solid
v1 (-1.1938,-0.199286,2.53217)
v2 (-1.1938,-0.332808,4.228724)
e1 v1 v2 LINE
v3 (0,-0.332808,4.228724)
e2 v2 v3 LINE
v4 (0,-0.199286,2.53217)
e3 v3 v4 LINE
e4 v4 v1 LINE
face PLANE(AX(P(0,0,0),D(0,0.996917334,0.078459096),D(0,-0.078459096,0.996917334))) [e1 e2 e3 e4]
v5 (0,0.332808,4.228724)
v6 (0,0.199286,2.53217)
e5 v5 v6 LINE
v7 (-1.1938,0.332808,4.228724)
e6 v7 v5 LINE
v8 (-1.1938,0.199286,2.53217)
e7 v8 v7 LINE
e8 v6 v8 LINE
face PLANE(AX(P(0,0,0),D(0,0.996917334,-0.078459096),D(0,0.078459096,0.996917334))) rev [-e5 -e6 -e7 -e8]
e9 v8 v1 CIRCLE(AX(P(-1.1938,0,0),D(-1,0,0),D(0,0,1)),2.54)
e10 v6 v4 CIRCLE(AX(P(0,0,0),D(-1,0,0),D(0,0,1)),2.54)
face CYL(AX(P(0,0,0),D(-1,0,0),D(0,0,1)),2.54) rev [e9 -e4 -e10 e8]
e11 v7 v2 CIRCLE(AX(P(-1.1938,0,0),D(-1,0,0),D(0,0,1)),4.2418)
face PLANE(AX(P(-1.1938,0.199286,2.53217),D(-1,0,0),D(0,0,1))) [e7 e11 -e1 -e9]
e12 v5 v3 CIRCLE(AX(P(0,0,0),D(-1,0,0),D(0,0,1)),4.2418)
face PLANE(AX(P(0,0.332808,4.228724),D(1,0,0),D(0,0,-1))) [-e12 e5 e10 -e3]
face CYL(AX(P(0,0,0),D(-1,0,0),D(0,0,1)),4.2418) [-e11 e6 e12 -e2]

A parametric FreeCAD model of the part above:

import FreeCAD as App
import Part
import Sketcher
Q = App.Units.Quantity


def add_polygon(sketch, points):
    """Adds a closed chain of lines whose ends are joined by coincident constraints."""
    first, n = sketch.GeometryCount, len(points)
    for a, b in zip(points, points[1:] + points[:1]):
        sketch.addGeometry(Part.LineSegment(App.Vector(*a, 0), App.Vector(*b, 0)), False)
    for i in range(n):
        sketch.addConstraint(Sketcher.Constraint("Coincident", first + i, 2, first + (i + 1) % n, 1))

doc = App.newDocument("Part")
params = doc.addObject("Spreadsheet::Sheet", "Params")
for row, (alias, value) in enumerate([
    ("sketch1_width", "0.047 in"),
    ("sketch1_height", "0.067 in"),
    ("revolution_angle", "351 deg"),
], start=1):
    params.set(f"A{row}", alias)
    params.set(f"B{row}", "=" + value)
    params.setAlias(f"B{row}", alias)

body = doc.addObject("PartDesign::Body", "Body")

sketch1 = body.newObject("Sketcher::SketchObject", "Sketch")
sketch1.Placement = App.Placement(App.Vector(0, 0, 0), App.Rotation(App.Vector(-1, 0, 0), App.Vector(0, -0.078459096, 0.996917334), App.Vector(0, 0.996917334, 0.078459096), "ZXY"))
add_polygon(sketch1, [(0, 4.2), (0, 2.5), (1.2, 2.5), (1.2, 4.2)])
sketch1.addConstraint([
    Sketcher.Constraint("Vertical", 0),
    Sketcher.Constraint("Horizontal", 1),
    Sketcher.Constraint("Vertical", 2),
    Sketcher.Constraint("Horizontal", 3),
    Sketcher.Constraint("PointOnObject", 0, 2, -2),
    Sketcher.Constraint("DistanceY", -1, 1, 0, 2, Q("0.1 in")),
    Sketcher.Constraint("DistanceX", 1, 1, 1, 2, Q("0.047 in")),
    Sketcher.Constraint("DistanceY", 0, 2, 0, 1, Q("0.067 in")),
])
sketch1.setExpression("Constraints[10]", "Params.sketch1_width")
sketch1.setExpression("Constraints[11]", "Params.sketch1_height")
revolution = body.newObject("PartDesign::Revolution", "Revolution")
revolution.Profile = sketch1
revolution.ReferenceAxis = (sketch1, ["H_Axis"])
revolution.setExpression("Angle", "Params.revolution_angle")
revolution.Reversed = True

doc.recompute()
